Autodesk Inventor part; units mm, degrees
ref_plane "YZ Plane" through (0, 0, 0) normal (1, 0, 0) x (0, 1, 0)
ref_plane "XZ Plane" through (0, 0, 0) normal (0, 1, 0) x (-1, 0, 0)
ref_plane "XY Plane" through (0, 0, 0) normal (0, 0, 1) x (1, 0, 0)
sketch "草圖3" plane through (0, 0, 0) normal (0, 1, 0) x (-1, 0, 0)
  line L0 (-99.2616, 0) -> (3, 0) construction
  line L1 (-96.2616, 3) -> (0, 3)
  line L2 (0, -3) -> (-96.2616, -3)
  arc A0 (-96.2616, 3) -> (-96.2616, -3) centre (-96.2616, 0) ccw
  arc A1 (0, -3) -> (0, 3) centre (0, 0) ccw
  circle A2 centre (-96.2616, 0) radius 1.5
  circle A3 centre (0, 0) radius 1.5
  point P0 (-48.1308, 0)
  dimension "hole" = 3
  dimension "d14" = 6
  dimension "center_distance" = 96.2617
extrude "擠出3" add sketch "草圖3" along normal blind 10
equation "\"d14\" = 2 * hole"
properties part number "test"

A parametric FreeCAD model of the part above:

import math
import FreeCAD as App
import Part
import Sketcher
Q = App.Units.Quantity

doc = App.newDocument("Part")
body = doc.addObject("PartDesign::Body", "Body")

sketch1 = body.newObject("Sketcher::SketchObject", "Sketch")
sketch1.AttachmentSupport = (doc.getObject("XZ_Plane"), [""])
sketch1.MapMode = "FlatFace"
sketch1.addGeometry(Part.LineSegment(App.Vector(0, 3, 0), App.Vector(96.3, 3, 0)), False)
sketch1.addGeometry(Part.ArcOfCircle(Part.Circle(App.Vector(96.3, 0, 0), App.Vector(0, 0, 1), 3), math.radians(-90), math.radians(90)), False)
sketch1.addGeometry(Part.LineSegment(App.Vector(96.3, -3, 0), App.Vector(0, -3, 0)), False)
sketch1.addGeometry(Part.ArcOfCircle(Part.Circle(App.Vector(0, 0, 0), App.Vector(0, 0, 1), 3), math.radians(90), math.radians(270)), False)
sketch1.addGeometry(Part.Circle(App.Vector(96.3, 0, 0), App.Vector(0, 0, 1), 1.5), False)
sketch1.addGeometry(Part.Circle(App.Vector(0, 0, 0), App.Vector(0, 0, 1), 1.5), False)
sketch1.addConstraint(Sketcher.Constraint("Tangent", 0, 2, 1, 2))
sketch1.addConstraint(Sketcher.Constraint("Tangent", 1, 1, 2, 1))
sketch1.addConstraint(Sketcher.Constraint("Tangent", 2, 2, 3, 2))
sketch1.addConstraint(Sketcher.Constraint("Tangent", 3, 1, 0, 1))
sketch1.addConstraint(Sketcher.Constraint("Horizontal", 0))
sketch1.addConstraint(Sketcher.Constraint("Horizontal", 2))
sketch1.addConstraint(Sketcher.Constraint("Coincident", 3, 3, -1, 1))
sketch1.addConstraint(Sketcher.Constraint("Coincident", 5, 3, -1, 1))
sketch1.addConstraint(Sketcher.Constraint("Coincident", 4, 3, 1, 3))
sketch1.addConstraint(Sketcher.Constraint("Equal", 4, 5))
sketch1.addConstraint(Sketcher.Constraint("Diameter", 4, Q("3 mm")))
sketch1.addConstraint(Sketcher.Constraint("Radius", 1, Q("3 mm")))
sketch1.addConstraint(Sketcher.Constraint("DistanceX", 0, 1, 0, 2, Q("96.2616 mm")))
pad1 = body.newObject("PartDesign::Pad", "Pad")
pad1.Profile = sketch1
pad1.Length = 10
pad1.Reversed = True

doc.recompute()
